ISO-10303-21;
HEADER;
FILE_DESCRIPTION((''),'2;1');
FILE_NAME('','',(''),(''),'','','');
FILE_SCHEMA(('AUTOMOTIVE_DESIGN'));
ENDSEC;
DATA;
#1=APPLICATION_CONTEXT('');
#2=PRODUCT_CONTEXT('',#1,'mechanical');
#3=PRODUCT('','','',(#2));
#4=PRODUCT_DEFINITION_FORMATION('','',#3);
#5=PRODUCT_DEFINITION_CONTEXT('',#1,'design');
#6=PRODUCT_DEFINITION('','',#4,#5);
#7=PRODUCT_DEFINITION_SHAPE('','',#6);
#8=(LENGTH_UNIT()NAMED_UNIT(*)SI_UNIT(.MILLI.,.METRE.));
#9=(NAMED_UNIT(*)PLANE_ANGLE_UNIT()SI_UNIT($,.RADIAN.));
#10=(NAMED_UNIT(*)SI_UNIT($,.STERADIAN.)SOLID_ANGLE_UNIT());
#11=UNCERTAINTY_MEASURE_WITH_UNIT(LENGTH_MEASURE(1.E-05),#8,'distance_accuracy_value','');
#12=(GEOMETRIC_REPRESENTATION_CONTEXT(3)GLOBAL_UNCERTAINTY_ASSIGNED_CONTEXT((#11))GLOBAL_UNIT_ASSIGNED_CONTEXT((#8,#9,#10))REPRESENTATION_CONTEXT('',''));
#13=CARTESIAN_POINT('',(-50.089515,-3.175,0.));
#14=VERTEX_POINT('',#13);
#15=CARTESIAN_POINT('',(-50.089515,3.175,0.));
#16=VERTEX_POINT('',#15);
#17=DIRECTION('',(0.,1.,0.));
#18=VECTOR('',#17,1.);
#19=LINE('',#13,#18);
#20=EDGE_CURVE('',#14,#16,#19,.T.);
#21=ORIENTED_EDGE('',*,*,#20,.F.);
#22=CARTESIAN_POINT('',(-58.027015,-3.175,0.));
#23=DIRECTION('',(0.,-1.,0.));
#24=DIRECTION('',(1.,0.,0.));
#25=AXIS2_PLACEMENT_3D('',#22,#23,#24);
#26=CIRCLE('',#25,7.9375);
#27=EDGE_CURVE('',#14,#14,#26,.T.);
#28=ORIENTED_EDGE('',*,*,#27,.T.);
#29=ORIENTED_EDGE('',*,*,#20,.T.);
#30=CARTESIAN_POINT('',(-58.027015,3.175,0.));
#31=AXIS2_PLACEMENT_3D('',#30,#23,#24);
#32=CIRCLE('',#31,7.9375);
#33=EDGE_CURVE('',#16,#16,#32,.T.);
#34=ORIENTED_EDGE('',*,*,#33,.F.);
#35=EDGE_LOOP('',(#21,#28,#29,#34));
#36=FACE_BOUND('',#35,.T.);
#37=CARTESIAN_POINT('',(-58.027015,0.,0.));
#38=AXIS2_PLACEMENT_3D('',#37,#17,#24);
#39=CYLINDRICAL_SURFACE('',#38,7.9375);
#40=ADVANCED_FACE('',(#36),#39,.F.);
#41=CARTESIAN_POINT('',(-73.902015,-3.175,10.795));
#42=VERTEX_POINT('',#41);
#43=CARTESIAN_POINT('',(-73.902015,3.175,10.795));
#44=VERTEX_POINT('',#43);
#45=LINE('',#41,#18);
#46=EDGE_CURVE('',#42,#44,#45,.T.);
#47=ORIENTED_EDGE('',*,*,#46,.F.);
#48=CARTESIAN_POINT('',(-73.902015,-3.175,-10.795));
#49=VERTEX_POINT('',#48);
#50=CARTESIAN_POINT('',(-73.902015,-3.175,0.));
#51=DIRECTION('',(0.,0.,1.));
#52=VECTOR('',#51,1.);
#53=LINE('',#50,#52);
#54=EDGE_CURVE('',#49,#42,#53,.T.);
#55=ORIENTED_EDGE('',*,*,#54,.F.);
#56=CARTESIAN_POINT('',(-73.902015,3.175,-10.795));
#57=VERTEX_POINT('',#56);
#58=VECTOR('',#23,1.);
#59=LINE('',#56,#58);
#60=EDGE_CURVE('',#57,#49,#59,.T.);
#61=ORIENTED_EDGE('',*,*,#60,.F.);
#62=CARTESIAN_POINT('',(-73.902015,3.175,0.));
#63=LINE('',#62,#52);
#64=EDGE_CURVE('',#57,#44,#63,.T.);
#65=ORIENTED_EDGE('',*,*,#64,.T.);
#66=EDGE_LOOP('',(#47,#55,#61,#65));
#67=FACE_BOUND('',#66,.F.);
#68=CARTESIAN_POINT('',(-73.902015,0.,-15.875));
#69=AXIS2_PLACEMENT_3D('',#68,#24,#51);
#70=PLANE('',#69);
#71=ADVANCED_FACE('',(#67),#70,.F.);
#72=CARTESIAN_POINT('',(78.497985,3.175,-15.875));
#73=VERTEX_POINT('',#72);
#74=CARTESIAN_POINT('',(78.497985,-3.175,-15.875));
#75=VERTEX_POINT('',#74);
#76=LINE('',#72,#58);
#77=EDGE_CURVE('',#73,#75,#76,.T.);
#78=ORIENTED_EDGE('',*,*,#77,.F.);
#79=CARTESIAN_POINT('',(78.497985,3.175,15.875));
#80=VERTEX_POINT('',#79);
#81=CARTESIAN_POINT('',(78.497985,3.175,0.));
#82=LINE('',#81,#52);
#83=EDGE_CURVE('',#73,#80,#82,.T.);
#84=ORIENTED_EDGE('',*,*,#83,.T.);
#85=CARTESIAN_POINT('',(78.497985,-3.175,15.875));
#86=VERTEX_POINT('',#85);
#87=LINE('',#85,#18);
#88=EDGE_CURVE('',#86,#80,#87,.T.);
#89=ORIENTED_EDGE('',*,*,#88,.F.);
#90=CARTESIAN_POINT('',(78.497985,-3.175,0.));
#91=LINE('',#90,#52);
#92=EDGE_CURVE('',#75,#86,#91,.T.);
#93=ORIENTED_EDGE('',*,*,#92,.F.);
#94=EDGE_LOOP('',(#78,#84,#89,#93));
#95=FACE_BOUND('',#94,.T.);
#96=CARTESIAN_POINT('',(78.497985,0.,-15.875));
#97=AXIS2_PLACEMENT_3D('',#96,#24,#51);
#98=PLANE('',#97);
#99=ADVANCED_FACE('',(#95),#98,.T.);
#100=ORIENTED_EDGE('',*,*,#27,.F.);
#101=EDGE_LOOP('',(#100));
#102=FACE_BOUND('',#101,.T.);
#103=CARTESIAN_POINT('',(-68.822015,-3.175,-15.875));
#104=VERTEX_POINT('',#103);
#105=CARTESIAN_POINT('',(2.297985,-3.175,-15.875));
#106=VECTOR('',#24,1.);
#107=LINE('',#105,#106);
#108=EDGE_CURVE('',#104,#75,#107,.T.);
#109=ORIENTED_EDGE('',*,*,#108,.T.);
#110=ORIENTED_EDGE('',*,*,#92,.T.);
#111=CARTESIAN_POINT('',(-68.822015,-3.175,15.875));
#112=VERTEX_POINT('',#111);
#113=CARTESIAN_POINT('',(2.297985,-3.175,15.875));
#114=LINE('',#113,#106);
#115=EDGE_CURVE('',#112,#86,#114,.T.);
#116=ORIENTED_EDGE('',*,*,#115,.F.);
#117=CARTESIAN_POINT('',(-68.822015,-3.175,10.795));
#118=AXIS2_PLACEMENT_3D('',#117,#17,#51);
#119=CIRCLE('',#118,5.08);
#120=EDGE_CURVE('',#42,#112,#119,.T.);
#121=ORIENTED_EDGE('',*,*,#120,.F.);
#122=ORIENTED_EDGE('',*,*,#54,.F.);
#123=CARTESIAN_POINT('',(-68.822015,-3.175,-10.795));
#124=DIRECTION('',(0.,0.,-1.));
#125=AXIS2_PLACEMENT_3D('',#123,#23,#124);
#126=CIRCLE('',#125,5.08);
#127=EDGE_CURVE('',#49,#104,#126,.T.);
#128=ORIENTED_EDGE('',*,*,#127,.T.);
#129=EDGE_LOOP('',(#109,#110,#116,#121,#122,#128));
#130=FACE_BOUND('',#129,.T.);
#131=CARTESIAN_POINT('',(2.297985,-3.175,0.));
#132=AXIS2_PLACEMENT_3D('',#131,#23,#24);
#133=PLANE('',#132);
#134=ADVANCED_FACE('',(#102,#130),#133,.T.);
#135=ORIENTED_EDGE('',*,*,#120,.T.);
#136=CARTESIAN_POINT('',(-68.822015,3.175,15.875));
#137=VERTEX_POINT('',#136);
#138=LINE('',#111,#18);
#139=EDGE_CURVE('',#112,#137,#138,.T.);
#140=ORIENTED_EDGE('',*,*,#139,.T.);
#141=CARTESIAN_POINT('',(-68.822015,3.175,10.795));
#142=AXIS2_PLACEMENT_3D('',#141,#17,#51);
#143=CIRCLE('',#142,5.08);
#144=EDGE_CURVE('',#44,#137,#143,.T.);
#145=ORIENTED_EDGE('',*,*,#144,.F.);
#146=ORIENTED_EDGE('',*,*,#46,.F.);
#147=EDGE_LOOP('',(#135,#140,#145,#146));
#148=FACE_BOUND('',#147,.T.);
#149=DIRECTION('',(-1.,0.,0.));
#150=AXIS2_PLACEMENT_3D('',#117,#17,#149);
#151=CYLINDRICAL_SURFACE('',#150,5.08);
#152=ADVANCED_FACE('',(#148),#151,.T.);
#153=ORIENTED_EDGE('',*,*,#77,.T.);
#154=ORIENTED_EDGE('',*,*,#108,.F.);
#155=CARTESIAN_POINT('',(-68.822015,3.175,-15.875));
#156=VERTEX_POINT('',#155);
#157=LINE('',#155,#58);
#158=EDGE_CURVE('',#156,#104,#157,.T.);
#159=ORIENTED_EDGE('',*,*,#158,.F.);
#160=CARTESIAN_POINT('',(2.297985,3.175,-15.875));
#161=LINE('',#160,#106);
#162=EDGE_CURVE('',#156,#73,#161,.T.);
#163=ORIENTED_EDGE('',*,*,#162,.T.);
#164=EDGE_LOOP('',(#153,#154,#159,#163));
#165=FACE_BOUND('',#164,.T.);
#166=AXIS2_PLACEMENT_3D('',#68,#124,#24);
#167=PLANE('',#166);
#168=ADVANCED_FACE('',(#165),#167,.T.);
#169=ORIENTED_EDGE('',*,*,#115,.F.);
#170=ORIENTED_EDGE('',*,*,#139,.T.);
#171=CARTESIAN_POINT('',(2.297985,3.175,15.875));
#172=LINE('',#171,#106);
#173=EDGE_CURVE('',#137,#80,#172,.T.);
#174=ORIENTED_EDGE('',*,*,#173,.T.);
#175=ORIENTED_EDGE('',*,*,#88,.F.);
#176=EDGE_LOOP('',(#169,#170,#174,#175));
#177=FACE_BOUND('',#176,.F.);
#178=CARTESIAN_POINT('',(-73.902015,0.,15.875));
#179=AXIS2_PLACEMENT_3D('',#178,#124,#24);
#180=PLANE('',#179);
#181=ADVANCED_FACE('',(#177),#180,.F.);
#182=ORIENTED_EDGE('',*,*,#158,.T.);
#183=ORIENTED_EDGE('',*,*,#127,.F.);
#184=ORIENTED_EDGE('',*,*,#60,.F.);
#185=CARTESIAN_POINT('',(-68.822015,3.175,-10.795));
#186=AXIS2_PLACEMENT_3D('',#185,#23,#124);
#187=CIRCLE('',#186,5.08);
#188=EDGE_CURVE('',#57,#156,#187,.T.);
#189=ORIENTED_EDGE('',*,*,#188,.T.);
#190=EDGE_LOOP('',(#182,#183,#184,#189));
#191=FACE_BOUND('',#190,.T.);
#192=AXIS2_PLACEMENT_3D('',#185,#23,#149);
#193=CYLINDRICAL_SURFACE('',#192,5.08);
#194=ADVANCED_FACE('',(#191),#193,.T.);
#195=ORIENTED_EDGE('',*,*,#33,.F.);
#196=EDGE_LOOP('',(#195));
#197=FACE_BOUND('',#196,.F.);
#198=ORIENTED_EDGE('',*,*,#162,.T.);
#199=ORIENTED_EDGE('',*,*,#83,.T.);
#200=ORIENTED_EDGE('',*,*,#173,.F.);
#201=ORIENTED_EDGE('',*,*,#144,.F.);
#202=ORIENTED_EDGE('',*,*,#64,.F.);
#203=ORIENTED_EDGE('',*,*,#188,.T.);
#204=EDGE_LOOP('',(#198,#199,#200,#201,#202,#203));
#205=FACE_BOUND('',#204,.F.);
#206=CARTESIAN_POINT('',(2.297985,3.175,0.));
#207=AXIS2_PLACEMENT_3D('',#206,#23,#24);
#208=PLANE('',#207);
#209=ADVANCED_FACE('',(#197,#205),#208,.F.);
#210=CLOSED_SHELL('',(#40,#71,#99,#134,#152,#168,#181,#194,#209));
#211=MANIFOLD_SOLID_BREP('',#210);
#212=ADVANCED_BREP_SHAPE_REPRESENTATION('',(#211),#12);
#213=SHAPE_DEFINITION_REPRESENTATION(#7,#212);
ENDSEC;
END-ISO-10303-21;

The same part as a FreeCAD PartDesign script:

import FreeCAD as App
import Part
import Sketcher
from FreeCAD import Vector
Q = App.Units.Quantity


def edges_at(feature, points):
    """Names of the edges that pass closest to the given points."""
    edges = feature.Shape.Edges
    near = lambda p: min(range(len(edges)), key=lambda i: edges[i].distToShape(Part.Vertex(*p))[0])
    return sorted({f"Edge{near(p) + 1}" for p in points})

doc = App.newDocument("Part")
body = doc.addObject("PartDesign::Body", "Body")

# Sketch on XZ plane
sketch1 = body.newObject("Sketcher::SketchObject", "Sketch")
sketch1.AttachmentSupport = (doc.getObject("XZ_Plane"), [""])
sketch1.MapMode = "FlatFace"
sketch1.addGeometry([
    Part.LineSegment(Vector(-74, 16, 0), Vector(-74, -16, 0)),  # 0
    Part.LineSegment(Vector(-74, -16, 0), Vector(78, -16, 0)),  # 1
    Part.LineSegment(Vector(78, -16, 0), Vector(78, 16, 0)),  # 2
    Part.LineSegment(Vector(78, 16, 0), Vector(-74, 16, 0)),  # 3
    Part.Circle(Vector(-58, 0, 0), Vector(0, 0, 1), 8),  # 4
], False)
sketch1.addConstraint([
    Sketcher.Constraint("Coincident", 0, 2, 1, 1),
    Sketcher.Constraint("Coincident", 1, 2, 2, 1),
    Sketcher.Constraint("Coincident", 2, 2, 3, 1),
    Sketcher.Constraint("Coincident", 3, 2, 0, 1),
    Sketcher.Constraint("Vertical", 0),
    Sketcher.Constraint("Horizontal", 1),
    Sketcher.Constraint("Vertical", 2),
    Sketcher.Constraint("Horizontal", 3),
    Sketcher.Constraint("PointOnObject", 4, 3, -1),
    Sketcher.Constraint("DistanceX", 1, 1, 1, 2, Q("6 in")),
    Sketcher.Constraint("Diameter", 4, Q("0.625 in")),
    Sketcher.Constraint("DistanceY", 0, 2, 0, 1, Q("1.25 in")),
    Sketcher.Constraint("DistanceY", 0, 2, -1, 1, Q("0.625 in")),
    Sketcher.Constraint("DistanceX", 0, 2, 4, 3, Q("0.625 in")),
    Sketcher.Constraint("DistanceX", 4, 3, -1, 1, 58.027015),
])
pad1 = body.newObject("PartDesign::Pad", "Pad")
pad1.Profile = sketch1
pad1.Length = Q("0.25 in")
pad1.Midplane = True
doc.recompute()

fillet = body.newObject("PartDesign::Fillet", "Fillet")
fillet.Base = (pad1, edges_at(pad1, [(-73.902, 0, 15.875), (-73.902, 0, -15.875)]))
fillet.Radius = Q("0.2 in")

doc.recompute()
